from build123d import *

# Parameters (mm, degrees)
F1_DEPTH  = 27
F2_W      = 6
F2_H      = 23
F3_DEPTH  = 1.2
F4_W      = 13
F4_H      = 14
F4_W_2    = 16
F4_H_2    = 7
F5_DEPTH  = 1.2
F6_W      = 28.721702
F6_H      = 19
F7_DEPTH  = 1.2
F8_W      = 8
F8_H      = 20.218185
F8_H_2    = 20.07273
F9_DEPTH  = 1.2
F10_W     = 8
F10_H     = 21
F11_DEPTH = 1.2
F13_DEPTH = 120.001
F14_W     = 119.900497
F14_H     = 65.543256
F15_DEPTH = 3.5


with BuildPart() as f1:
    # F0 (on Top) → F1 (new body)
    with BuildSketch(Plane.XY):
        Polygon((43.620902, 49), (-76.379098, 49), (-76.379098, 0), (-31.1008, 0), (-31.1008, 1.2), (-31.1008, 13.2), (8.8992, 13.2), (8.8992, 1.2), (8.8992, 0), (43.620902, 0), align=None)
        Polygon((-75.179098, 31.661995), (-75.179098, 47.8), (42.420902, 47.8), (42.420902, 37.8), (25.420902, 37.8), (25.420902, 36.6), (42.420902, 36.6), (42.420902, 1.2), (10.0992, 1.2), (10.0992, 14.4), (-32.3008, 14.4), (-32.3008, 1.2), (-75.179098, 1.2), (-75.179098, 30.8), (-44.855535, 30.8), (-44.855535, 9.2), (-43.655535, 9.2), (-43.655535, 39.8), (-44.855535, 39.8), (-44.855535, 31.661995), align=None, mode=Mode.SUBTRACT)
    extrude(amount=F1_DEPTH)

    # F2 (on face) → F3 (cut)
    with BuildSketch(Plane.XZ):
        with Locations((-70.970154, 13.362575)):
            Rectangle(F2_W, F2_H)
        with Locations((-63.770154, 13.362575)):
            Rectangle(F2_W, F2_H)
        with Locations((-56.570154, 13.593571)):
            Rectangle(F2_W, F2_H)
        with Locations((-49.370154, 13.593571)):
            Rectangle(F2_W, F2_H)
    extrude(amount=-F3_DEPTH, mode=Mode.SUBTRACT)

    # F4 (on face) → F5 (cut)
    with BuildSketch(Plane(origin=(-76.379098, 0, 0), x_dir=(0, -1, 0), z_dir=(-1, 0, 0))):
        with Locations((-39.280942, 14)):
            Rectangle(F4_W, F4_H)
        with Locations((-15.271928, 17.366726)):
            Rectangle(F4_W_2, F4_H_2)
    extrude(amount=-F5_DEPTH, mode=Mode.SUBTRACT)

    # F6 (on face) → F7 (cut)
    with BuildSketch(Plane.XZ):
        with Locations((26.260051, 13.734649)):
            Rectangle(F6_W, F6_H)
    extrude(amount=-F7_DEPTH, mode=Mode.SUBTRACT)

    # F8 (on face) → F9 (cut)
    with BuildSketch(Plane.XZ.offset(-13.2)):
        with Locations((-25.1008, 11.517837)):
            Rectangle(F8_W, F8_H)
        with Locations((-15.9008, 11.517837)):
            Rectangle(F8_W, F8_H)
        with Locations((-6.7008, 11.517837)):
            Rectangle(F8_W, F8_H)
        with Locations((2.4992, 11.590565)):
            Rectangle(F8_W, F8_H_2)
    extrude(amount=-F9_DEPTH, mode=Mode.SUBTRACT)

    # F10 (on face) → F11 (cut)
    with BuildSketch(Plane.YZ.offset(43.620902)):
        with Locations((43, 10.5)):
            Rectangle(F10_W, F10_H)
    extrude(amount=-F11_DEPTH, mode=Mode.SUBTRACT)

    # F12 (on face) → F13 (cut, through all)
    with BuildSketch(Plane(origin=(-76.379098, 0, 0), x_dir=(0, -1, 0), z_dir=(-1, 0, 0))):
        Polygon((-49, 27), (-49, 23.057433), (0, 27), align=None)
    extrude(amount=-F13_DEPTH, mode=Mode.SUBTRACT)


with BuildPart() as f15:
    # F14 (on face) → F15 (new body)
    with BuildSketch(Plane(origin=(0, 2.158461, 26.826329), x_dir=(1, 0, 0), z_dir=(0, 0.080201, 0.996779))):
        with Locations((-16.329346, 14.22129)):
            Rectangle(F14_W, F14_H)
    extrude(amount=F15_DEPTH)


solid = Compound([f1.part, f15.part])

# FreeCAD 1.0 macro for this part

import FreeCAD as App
import Part
import Sketcher

V = App.Vector


def add_polygon(sketch, points):
    """Adds a closed chain of lines whose ends are joined by coincident constraints."""
    first, n = sketch.GeometryCount, len(points)
    for a, b in zip(points, points[1:] + points[:1]):
        sketch.addGeometry(Part.LineSegment(App.Vector(*a, 0), App.Vector(*b, 0)), False)
    for i in range(n):
        sketch.addConstraint(Sketcher.Constraint("Coincident", first + i, 2, first + (i + 1) % n, 1))

doc = App.newDocument("Part")
body = doc.addObject("PartDesign::Body", "Body")

# Sketch on XY plane
sketch1 = doc.addObject("Sketcher::SketchObject", "Sketch")
body.addObject(sketch1)
sketch1.AttachmentSupport = (doc.XY_Plane, [""])
sketch1.MapMode = "FlatFace"
add_polygon(sketch1, [(43.620902, 49), (-76.379098, 49), (-76.379098, 0), (-31.1008, 0), (-31.1008, 13.2), (8.8992, 13.2), (8.8992, 0), (43.620902, 0)])  # lines 0-7
add_polygon(sketch1, [(-44.855535, 31.661995), (-75.179098, 31.661995), (-75.179098, 47.8), (42.420902, 47.8), (42.420902, 37.8), (25.420902, 37.8), (25.420902, 36.6), (42.420902, 36.6), (42.420902, 1.2), (10.0992, 1.2), (10.0992, 14.4), (-32.3008, 14.4), (-32.3008, 1.2), (-75.179098, 1.2), (-75.179098, 30.8), (-44.855535, 30.8), (-44.855535, 9.2), (-43.655535, 9.2), (-43.655535, 39.8), (-44.855535, 39.8)])  # lines 8-27
sketch1.addConstraint([
    Sketcher.Constraint("Horizontal", 0),
    Sketcher.Constraint("Vertical", 1),
    Sketcher.Constraint("Horizontal", 2),
    Sketcher.Constraint("Vertical", 3),
    Sketcher.Constraint("Horizontal", 4),
    Sketcher.Constraint("Vertical", 5),
    Sketcher.Constraint("Horizontal", 6),
    Sketcher.Constraint("Vertical", 7),
    Sketcher.Constraint("Horizontal", 8),
    Sketcher.Constraint("Vertical", 9),
    Sketcher.Constraint("Horizontal", 10),
    Sketcher.Constraint("Vertical", 11),
    Sketcher.Constraint("Horizontal", 12),
    Sketcher.Constraint("Vertical", 13),
    Sketcher.Constraint("Horizontal", 14),
    Sketcher.Constraint("Vertical", 15),
    Sketcher.Constraint("Horizontal", 16),
    Sketcher.Constraint("Vertical", 17),
    Sketcher.Constraint("Horizontal", 18),
    Sketcher.Constraint("Vertical", 19),
    Sketcher.Constraint("Horizontal", 20),
    Sketcher.Constraint("Vertical", 21),
    Sketcher.Constraint("Horizontal", 22),
    Sketcher.Constraint("Vertical", 23),
    Sketcher.Constraint("Horizontal", 24),
    Sketcher.Constraint("Vertical", 25),
    Sketcher.Constraint("Horizontal", 26),
    Sketcher.Constraint("Vertical", 27),
    Sketcher.Constraint("PointOnObject", 1, 2, -1),
    Sketcher.Constraint("PointOnObject", 5, 2, -1),
    Sketcher.Constraint("Horizontal", 16, 2, 19, 2),
    Sketcher.Constraint("Vertical", 11, 2, 14, 2),
    Sketcher.Constraint("Vertical", 9, 2, 20, 2),
    Sketcher.Constraint("Vertical", 23, 2, 26, 2),
    Sketcher.Constraint("Equal", 26, 13),
    Sketcher.Constraint("Equal", 5, 17),
    Sketcher.Constraint("DistanceX", 0, 2, 0, 1, 120.0),
    Sketcher.Constraint("DistanceX", 4, 1, 4, 2, 40.0),
    Sketcher.Constraint("DistanceX", 12, 2, 12, 1, 17.0),
    Sketcher.Constraint("DistanceY", 1, 2, 1, 1, 49.0),
    Sketcher.Constraint("DistanceY", 11, 2, 11, 1, 10.0),
    Sketcher.Constraint("DistanceX", 10, 1, 10, 2, 117.6),
    Sketcher.Constraint("DistanceX", 18, 2, 18, 1, 42.4),
    Sketcher.Constraint("DistanceX", 24, 1, 24, 2, 1.2),
    Sketcher.Constraint("DistanceY", 3, 1, 3, 2, 13.2),
    Sketcher.Constraint("DistanceY", 15, 2, 15, 1, 35.4),
    Sketcher.Constraint("DistanceY", 21, 1, 21, 2, 29.6),
    Sketcher.Constraint("DistanceY", 23, 2, 23, 1, 21.6),
    Sketcher.Constraint("DistanceY", 25, 1, 25, 2, 30.6),
    Sketcher.Constraint("DistanceY", 15, 2, 4, 2, 12.0),
    Sketcher.Constraint("DistanceX", 0, 2, 8, 2, 1.2),
    Sketcher.Constraint("DistanceX", 5, 2, 16, 2, 1.2),
    Sketcher.Constraint("DistanceX", 0, 2, -1, 1, 76.379098),
    Sketcher.Constraint("DistanceX", 2, 2, -1, 1, 31.1008),
    Sketcher.Constraint("DistanceX", 8, 2, 8, 1, 30.323563),
    Sketcher.Constraint("DistanceY", 9, 1, 9, 2, 16.138005),
])
pad1 = doc.addObject("PartDesign::Pad", "Pad")
body.addObject(pad1)
pad1.Profile = sketch1
pad1.Length = 27

# Sketch on XZ plane
sketch2 = doc.addObject("Sketcher::SketchObject", "Sketch001")
body.addObject(sketch2)
sketch2.AttachmentSupport = (doc.XZ_Plane, [""])
sketch2.MapMode = "FlatFace"
add_polygon(sketch2, [(-73.970154, 24.862575), (-73.970154, 1.862575), (-67.970154, 1.862575), (-67.970154, 24.862575)])  # lines 0-3
add_polygon(sketch2, [(-66.770154, 24.862575), (-66.770154, 1.862575), (-60.770154, 1.862575), (-60.770154, 24.862575)])  # lines 4-7
add_polygon(sketch2, [(-59.570154, 25.093571), (-59.570154, 2.093571), (-53.570154, 2.093571), (-53.570154, 25.093571)])  # lines 8-11
add_polygon(sketch2, [(-52.370154, 25.093571), (-52.370154, 2.093571), (-46.370154, 2.093571), (-46.370154, 25.093571)])  # lines 12-15
sketch2.addConstraint([
    Sketcher.Constraint("Vertical", 0),
    Sketcher.Constraint("Horizontal", 1),
    Sketcher.Constraint("Vertical", 2),
    Sketcher.Constraint("Horizontal", 3),
    Sketcher.Constraint("Vertical", 4),
    Sketcher.Constraint("Horizontal", 5),
    Sketcher.Constraint("Vertical", 6),
    Sketcher.Constraint("Horizontal", 7),
    Sketcher.Constraint("Vertical", 8),
    Sketcher.Constraint("Horizontal", 9),
    Sketcher.Constraint("Vertical", 10),
    Sketcher.Constraint("Horizontal", 11),
    Sketcher.Constraint("Vertical", 12),
    Sketcher.Constraint("Horizontal", 13),
    Sketcher.Constraint("Vertical", 14),
    Sketcher.Constraint("Horizontal", 15),
    Sketcher.Constraint("Horizontal", 1, 2, 4, 2),
    Sketcher.Constraint("Horizontal", 3, 2, 6, 2),
    Sketcher.Constraint("Horizontal", 9, 2, 12, 2),
    Sketcher.Constraint("Horizontal", 11, 2, 14, 2),
    Sketcher.Constraint("Equal", 3, 5),
    Sketcher.Constraint("Equal", 7, 9),
    Sketcher.Constraint("Equal", 11, 13),
    Sketcher.Constraint("Equal", 6, 8),
    Sketcher.Constraint("DistanceX", 1, 1, 1, 2, 6.0),
    Sketcher.Constraint("DistanceY", 0, 2, 0, 1, 23.0),
    Sketcher.Constraint("DistanceX", 1, 2, 4, 2, 1.2),
    Sketcher.Constraint("DistanceX", 5, 2, 8, 2, 1.2),
    Sketcher.Constraint("DistanceX", 9, 2, 12, 2, 1.2),
    Sketcher.Constraint("DistanceY", -1, 1, 8, 2, 2.093571),
    Sketcher.Constraint("DistanceX", 0, 2, -1, 1, 73.970154),
    Sketcher.Constraint("DistanceY", -1, 1, 0, 2, 1.862575),
])
pocket1 = doc.addObject("PartDesign::Pocket", "Pocket")
body.addObject(pocket1)
pocket1.Profile = sketch2
pocket1.Length = 1.2

# Sketch on YZ plane
sketch3 = doc.addObject("Sketcher::SketchObject", "Sketch002")
body.addObject(sketch3)
sketch3.AttachmentSupport = (doc.YZ_Plane, [""])
sketch3.MapMode = "FlatFace"
sketch3.AttachmentOffset = App.Placement(V(0, 0, -76.379098), App.Rotation())
add_polygon(sketch3, [(45.780942, 21), (45.780942, 7), (32.780942, 7), (32.780942, 21)])  # lines 0-3
add_polygon(sketch3, [(23.271928, 20.866726), (23.271928, 13.866726), (7.271928, 13.866726), (7.271928, 20.866726)])  # lines 4-7
sketch3.addConstraint([
    Sketcher.Constraint("Vertical", 0),
    Sketcher.Constraint("Horizontal", 1),
    Sketcher.Constraint("Vertical", 2),
    Sketcher.Constraint("Horizontal", 3),
    Sketcher.Constraint("Vertical", 4),
    Sketcher.Constraint("Horizontal", 5),
    Sketcher.Constraint("Vertical", 6),
    Sketcher.Constraint("Horizontal", 7),
    Sketcher.Constraint("DistanceX", 1, 2, 1, 1, 13.0),
    Sketcher.Constraint("DistanceX", 5, 2, 5, 1, 16.0),
    Sketcher.Constraint("DistanceY", 0, 2, 0, 1, 14.0),
    Sketcher.Constraint("DistanceY", 4, 2, 4, 1, 7.0),
    Sketcher.Constraint("DistanceY", -1, 1, 0, 2, 7.0),
    Sketcher.Constraint("DistanceX", -1, 1, 0, 2, 45.780942),
    Sketcher.Constraint("DistanceX", -1, 1, 4, 2, 23.271928),
    Sketcher.Constraint("DistanceY", -1, 1, 4, 2, 13.866726),
])
pocket2 = doc.addObject("PartDesign::Pocket", "Pocket001")
body.addObject(pocket2)
pocket2.Profile = sketch3
pocket2.Length = 1.2
pocket2.Reversed = True

# Sketch on XZ plane
sketch4 = doc.addObject("Sketcher::SketchObject", "Sketch003")
body.addObject(sketch4)
sketch4.AttachmentSupport = (doc.XZ_Plane, [""])
sketch4.MapMode = "FlatFace"
add_polygon(sketch4, [(11.8992, 23.234649), (11.8992, 4.234649), (40.620902, 4.234649), (40.620902, 23.234649)])  # lines 0-3
sketch4.addConstraint([
    Sketcher.Constraint("Vertical", 0),
    Sketcher.Constraint("Horizontal", 1),
    Sketcher.Constraint("Vertical", 2),
    Sketcher.Constraint("Horizontal", 3),
    Sketcher.Constraint("DistanceY", 0, 2, 0, 1, 19.0),
    Sketcher.Constraint("DistanceX", -1, 1, 0, 2, 11.8992),
    Sketcher.Constraint("DistanceX", 1, 1, 1, 2, 28.721702),
    Sketcher.Constraint("DistanceY", -1, 1, 0, 2, 4.234649),
])
pocket3 = doc.addObject("PartDesign::Pocket", "Pocket002")
body.addObject(pocket3)
pocket3.Profile = sketch4
pocket3.Length = 1.2

# Sketch on XZ plane
sketch5 = doc.addObject("Sketcher::SketchObject", "Sketch004")
body.addObject(sketch5)
sketch5.AttachmentSupport = (doc.XZ_Plane, [""])
sketch5.MapMode = "FlatFace"
sketch5.AttachmentOffset = App.Placement(V(0, 0, -13.2), App.Rotation())
add_polygon(sketch5, [(-29.1008, 21.626929), (-29.1008, 1.408745), (-21.1008, 1.408745), (-21.1008, 21.626929)])  # lines 0-3
add_polygon(sketch5, [(-19.9008, 21.626929), (-19.9008, 1.408745), (-11.9008, 1.408745), (-11.9008, 21.626929)])  # lines 4-7
add_polygon(sketch5, [(-10.7008, 21.626929), (-10.7008, 1.408745), (-2.7008, 1.408745), (-2.7008, 21.626929)])  # lines 8-11
add_polygon(sketch5, [(-1.5008, 21.62693), (-1.5008, 1.5542), (6.4992, 1.5542), (6.4992, 21.62693)])  # lines 12-15
sketch5.addConstraint([
    Sketcher.Constraint("Vertical", 0),
    Sketcher.Constraint("Horizontal", 1),
    Sketcher.Constraint("Vertical", 2),
    Sketcher.Constraint("Horizontal", 3),
    Sketcher.Constraint("Vertical", 4),
    Sketcher.Constraint("Horizontal", 5),
    Sketcher.Constraint("Vertical", 6),
    Sketcher.Constraint("Horizontal", 7),
    Sketcher.Constraint("Vertical", 8),
    Sketcher.Constraint("Horizontal", 9),
    Sketcher.Constraint("Vertical", 10),
    Sketcher.Constraint("Horizontal", 11),
    Sketcher.Constraint("Vertical", 12),
    Sketcher.Constraint("Horizontal", 13),
    Sketcher.Constraint("Vertical", 14),
    Sketcher.Constraint("Horizontal", 15),
    Sketcher.Constraint("Horizontal", 1, 2, 4, 2),
    Sketcher.Constraint("Horizontal", 3, 2, 6, 2),
    Sketcher.Constraint("Horizontal", 5, 2, 8, 2),
    Sketcher.Constraint("Horizontal", 7, 2, 10, 2),
    Sketcher.Constraint("Horizontal", 11, 2, 14, 2),
    Sketcher.Constraint("Equal", 3, 5),
    Sketcher.Constraint("Equal", 7, 9),
    Sketcher.Constraint("Equal", 11, 13),
    Sketcher.Constraint("DistanceX", 1, 1, 1, 2, 8.0),
    Sketcher.Constraint("DistanceX", 1, 2, 4, 2, 1.2),
    Sketcher.Constraint("DistanceX", 5, 2, 8, 2, 1.2),
    Sketcher.Constraint("DistanceX", 9, 2, 12, 2, 1.2),
    Sketcher.Constraint("DistanceY", 12, 2, 12, 1, 20.07273),
    Sketcher.Constraint("DistanceX", 0, 2, -1, 1, 29.1008),
    Sketcher.Constraint("DistanceY", -1, 1, 12, 2, 1.5542),
    Sketcher.Constraint("DistanceY", 0, 2, 0, 1, 20.218185),
])
pocket4 = doc.addObject("PartDesign::Pocket", "Pocket003")
body.addObject(pocket4)
pocket4.Profile = sketch5
pocket4.Length = 1.2

# Sketch on YZ plane
sketch6 = doc.addObject("Sketcher::SketchObject", "Sketch005")
body.addObject(sketch6)
sketch6.AttachmentSupport = (doc.YZ_Plane, [""])
sketch6.MapMode = "FlatFace"
sketch6.AttachmentOffset = App.Placement(V(0, 0, 43.620902), App.Rotation())
add_polygon(sketch6, [(39, 21), (39, 0), (47, 0), (47, 21)])  # lines 0-3
sketch6.addConstraint([
    Sketcher.Constraint("Vertical", 0),
    Sketcher.Constraint("Horizontal", 1),
    Sketcher.Constraint("Vertical", 2),
    Sketcher.Constraint("Horizontal", 3),
    Sketcher.Constraint("PointOnObject", 0, 2, -1),
    Sketcher.Constraint("DistanceX", 1, 1, 1, 2, 8.0),
    Sketcher.Constraint("DistanceY", 0, 2, 0, 1, 21.0),
    Sketcher.Constraint("DistanceX", -1, 1, 0, 2, 39.0),
])
pocket5 = doc.addObject("PartDesign::Pocket", "Pocket004")
body.addObject(pocket5)
pocket5.Profile = sketch6
pocket5.Length = 1.2

# Sketch on YZ plane
sketch7 = doc.addObject("Sketcher::SketchObject", "Sketch006")
body.addObject(sketch7)
sketch7.AttachmentSupport = (doc.YZ_Plane, [""])
sketch7.MapMode = "FlatFace"
sketch7.AttachmentOffset = App.Placement(V(0, 0, -76.379098), App.Rotation())
add_polygon(sketch7, [(49, 27), (49, 23.057433), (0, 27)])  # lines 0-2
sketch7.addConstraint([
    Sketcher.Constraint("Vertical", 0),
    Sketcher.Constraint("Horizontal", 2),
    Sketcher.Constraint("PointOnObject", 1, 2, -2),
    Sketcher.Constraint("DistanceX", 2, 1, 2, 2, 49.0),
    Sketcher.Constraint("DistanceY", -1, 1, 1, 2, 27.0),
    Sketcher.Constraint("DistanceY", 0, 2, 0, 1, 3.942567),
])
pocket6 = doc.addObject("PartDesign::Pocket", "Pocket005")
body.addObject(pocket6)
pocket6.Profile = sketch7
pocket6.Type = "ThroughAll"
pocket6.Reversed = True
body2 = doc.addObject("PartDesign::Body", "Body001")

# Sketch on an angled plane
sketch8 = doc.addObject("Sketcher::SketchObject", "Sketch007")
body2.addObject(sketch8)
sketch8.Placement = App.Placement(V(0, 2.158461, 26.826329), App.Rotation(V(1, 0, 0), V(0, 0.996778713, -0.080200977), V(0, 0.080200977, 0.996778713), "ZXY"))
add_polygon(sketch8, [(-76.279595, 46.992918), (-76.279595, -18.550338), (43.620902, -18.550338), (43.620902, 46.992918)])  # lines 0-3
sketch8.addConstraint([
    Sketcher.Constraint("Vertical", 0),
    Sketcher.Constraint("Horizontal", 1),
    Sketcher.Constraint("Vertical", 2),
    Sketcher.Constraint("Horizontal", 3),
    Sketcher.Constraint("DistanceX", 1, 1, 1, 2, 119.900497),
    Sketcher.Constraint("DistanceY", 0, 2, 0, 1, 65.543256),
    Sketcher.Constraint("DistanceX", 0, 2, -1, 1, 76.279595),
    Sketcher.Constraint("DistanceY", 0, 2, -1, 1, 18.550338),
])
pad2 = doc.addObject("PartDesign::Pad", "Pad001")
body2.addObject(pad2)
pad2.Profile = sketch8
pad2.Length = 3.5

doc.recompute()
